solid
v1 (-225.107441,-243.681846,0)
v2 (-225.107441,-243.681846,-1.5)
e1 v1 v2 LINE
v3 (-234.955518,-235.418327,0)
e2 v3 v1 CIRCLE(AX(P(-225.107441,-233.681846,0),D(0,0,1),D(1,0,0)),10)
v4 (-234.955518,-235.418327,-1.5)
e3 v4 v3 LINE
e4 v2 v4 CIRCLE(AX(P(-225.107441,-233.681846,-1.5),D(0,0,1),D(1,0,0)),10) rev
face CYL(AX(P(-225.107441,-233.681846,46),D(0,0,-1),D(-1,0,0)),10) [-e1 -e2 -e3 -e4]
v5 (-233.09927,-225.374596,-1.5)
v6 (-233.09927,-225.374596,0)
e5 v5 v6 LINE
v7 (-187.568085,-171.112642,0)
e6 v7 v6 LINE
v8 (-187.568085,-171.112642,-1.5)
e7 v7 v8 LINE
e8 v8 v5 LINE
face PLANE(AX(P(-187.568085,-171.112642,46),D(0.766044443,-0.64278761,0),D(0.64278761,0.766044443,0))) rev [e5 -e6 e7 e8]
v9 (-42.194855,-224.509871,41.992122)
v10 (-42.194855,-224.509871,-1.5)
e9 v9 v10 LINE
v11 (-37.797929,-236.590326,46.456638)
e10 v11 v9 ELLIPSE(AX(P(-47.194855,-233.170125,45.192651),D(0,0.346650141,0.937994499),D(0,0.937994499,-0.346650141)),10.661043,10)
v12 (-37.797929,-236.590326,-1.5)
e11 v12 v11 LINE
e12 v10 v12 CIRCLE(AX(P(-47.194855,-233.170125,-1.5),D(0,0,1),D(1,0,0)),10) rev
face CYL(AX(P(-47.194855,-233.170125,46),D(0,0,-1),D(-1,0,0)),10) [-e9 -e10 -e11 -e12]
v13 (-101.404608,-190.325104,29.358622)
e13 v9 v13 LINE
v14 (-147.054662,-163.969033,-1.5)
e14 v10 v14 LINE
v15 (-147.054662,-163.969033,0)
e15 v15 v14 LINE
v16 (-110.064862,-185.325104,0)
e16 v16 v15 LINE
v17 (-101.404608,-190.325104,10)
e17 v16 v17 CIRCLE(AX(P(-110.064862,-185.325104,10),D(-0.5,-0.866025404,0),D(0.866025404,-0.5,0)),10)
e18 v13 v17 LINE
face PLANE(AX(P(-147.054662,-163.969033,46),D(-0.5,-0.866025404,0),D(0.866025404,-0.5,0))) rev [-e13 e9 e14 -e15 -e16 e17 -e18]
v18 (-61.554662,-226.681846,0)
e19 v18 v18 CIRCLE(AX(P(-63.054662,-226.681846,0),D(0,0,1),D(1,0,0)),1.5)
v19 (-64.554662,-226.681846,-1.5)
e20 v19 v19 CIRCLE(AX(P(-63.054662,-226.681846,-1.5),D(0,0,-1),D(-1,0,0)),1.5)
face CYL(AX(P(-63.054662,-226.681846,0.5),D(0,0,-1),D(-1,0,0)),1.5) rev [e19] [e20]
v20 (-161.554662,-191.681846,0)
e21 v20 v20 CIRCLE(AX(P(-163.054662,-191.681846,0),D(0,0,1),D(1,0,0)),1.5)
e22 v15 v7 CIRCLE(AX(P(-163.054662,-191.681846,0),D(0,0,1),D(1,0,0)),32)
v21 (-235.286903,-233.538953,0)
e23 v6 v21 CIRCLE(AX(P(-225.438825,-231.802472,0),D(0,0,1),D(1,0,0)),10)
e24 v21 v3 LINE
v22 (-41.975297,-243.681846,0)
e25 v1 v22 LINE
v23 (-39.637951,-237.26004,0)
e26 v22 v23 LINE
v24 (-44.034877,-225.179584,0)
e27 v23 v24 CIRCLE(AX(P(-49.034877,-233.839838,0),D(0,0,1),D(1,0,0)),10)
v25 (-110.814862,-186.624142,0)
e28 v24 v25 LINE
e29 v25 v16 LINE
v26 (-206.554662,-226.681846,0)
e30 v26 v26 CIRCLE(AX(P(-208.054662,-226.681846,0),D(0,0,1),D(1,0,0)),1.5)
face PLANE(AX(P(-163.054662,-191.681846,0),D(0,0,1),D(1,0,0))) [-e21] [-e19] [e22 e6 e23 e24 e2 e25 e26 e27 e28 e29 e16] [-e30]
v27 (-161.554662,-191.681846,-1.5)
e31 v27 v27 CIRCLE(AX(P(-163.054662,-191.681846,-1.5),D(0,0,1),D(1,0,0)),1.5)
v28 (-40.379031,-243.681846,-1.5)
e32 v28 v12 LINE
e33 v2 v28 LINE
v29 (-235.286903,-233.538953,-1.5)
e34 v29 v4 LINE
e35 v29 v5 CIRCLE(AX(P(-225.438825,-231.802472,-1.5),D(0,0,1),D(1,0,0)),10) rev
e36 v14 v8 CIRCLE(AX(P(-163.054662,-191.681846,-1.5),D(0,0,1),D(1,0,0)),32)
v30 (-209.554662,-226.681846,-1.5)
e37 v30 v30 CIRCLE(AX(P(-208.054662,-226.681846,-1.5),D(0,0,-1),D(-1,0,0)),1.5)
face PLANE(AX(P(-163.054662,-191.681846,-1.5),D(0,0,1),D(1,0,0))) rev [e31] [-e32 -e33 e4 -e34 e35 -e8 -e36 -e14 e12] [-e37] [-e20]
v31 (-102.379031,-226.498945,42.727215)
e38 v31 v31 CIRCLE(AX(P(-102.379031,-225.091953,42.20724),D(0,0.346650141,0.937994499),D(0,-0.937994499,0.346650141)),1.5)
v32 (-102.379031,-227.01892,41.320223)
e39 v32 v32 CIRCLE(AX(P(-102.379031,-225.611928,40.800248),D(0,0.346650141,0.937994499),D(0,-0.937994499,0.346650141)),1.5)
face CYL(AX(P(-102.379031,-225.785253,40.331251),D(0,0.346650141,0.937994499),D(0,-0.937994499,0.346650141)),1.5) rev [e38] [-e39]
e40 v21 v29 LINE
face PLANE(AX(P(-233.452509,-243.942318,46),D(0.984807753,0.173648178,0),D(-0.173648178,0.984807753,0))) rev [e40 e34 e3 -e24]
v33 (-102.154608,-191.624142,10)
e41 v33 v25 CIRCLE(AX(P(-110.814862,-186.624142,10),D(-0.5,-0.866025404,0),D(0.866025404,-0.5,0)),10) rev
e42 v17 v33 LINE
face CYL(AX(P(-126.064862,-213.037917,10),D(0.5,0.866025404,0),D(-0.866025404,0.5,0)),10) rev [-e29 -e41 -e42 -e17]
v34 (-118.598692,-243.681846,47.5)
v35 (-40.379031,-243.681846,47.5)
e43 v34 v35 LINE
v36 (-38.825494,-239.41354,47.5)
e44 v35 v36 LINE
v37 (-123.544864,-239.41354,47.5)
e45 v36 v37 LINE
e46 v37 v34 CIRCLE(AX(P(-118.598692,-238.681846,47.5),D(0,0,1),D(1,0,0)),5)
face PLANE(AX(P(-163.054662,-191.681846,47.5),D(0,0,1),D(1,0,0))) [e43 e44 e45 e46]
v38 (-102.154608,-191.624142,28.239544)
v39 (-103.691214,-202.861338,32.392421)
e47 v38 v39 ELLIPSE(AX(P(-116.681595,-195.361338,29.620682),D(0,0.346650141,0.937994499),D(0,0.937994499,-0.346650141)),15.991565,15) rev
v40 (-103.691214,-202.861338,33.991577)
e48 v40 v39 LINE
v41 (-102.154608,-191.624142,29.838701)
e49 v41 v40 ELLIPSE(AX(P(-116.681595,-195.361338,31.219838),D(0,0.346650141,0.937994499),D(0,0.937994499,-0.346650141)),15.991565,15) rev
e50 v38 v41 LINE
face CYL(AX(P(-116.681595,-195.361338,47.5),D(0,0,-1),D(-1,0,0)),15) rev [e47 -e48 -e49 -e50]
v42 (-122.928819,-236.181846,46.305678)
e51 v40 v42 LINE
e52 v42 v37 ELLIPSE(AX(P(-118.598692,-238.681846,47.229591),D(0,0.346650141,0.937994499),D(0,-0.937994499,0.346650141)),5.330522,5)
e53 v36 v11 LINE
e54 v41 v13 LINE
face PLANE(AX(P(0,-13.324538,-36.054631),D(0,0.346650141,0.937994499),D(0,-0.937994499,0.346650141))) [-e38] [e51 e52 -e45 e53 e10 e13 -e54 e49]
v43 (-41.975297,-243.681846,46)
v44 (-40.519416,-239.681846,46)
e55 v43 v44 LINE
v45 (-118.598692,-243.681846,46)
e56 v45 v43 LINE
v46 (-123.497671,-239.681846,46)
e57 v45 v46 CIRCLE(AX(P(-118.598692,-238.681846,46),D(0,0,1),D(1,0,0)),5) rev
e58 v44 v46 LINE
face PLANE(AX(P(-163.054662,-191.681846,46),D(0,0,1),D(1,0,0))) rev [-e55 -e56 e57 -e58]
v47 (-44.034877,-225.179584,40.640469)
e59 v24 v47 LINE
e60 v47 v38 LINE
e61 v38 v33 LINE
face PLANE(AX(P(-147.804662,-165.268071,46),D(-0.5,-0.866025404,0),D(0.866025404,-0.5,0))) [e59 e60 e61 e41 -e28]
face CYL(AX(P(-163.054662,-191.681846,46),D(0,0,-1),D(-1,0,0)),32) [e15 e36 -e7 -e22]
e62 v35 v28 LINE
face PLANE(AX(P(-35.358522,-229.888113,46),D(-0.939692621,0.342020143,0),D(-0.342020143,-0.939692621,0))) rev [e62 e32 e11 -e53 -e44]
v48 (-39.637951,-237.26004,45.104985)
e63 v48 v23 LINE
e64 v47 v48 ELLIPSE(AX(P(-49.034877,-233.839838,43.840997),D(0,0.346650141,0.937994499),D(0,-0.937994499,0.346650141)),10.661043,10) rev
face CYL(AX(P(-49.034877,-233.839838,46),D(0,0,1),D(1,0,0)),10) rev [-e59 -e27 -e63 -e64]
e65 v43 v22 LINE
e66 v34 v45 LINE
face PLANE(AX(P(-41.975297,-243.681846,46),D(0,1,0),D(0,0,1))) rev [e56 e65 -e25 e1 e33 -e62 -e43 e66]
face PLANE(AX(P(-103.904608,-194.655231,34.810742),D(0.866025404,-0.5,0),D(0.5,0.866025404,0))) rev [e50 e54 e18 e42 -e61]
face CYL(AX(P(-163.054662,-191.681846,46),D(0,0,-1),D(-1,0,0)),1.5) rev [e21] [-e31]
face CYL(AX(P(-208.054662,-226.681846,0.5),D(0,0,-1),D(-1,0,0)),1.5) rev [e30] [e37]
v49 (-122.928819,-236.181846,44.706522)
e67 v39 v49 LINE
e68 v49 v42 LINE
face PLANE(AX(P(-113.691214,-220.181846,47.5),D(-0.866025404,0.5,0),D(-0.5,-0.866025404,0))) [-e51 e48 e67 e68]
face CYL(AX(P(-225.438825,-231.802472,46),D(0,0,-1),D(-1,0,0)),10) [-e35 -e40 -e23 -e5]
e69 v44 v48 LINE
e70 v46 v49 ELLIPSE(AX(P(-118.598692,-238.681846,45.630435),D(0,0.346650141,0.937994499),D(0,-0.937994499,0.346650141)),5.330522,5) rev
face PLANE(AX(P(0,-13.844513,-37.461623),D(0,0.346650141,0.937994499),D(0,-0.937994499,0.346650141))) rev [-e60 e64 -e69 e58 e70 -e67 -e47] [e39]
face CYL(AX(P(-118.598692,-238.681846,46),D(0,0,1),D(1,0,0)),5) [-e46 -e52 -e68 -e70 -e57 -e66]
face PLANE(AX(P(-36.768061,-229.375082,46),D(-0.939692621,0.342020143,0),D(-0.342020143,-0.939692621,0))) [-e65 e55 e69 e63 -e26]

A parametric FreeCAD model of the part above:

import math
import FreeCAD as App
import Part
import Sketcher

V = App.Vector
Q = App.Units.Quantity


def edges_at(feature, points):
    """Names of the edges that pass closest to the given points."""
    edges = feature.Shape.Edges
    near = lambda p: min(range(len(edges)), key=lambda i: edges[i].distToShape(Part.Vertex(*p))[0])
    return sorted({f"Edge{near(p) + 1}" for p in points})


def faces_at(feature, points):
    """Names of the faces that lie closest to the given points."""
    faces = feature.Shape.Faces
    near = lambda p: min(range(len(faces)), key=lambda i: faces[i].distToShape(Part.Vertex(*p))[0])
    return sorted({f"Face{near(p) + 1}" for p in points})

doc = App.newDocument("Part")
body = doc.addObject("PartDesign::Body", "Body")

# Sketch on XY plane
sketch1 = body.newObject("Sketcher::SketchObject", "Sketch")
sketch1.AttachmentSupport = (doc.getObject("XY_Plane"), [""])
sketch1.MapMode = "FlatFace"
sketch1.addGeometry(Part.LineSegment(V(-186.4, -172.1, 0), V(-234.5, -229.4, 0)), False)
sketch1.addGeometry(Part.LineSegment(V(-234.5, -229.4, 0), V(-232, -243.7, 0)), False)
sketch1.addGeometry(Part.LineSegment(V(-232, -243.7, 0), V(-42, -243.7, 0)), False)
sketch1.addGeometry(Part.LineSegment(V(-42, -243.7, 0), V(-36.8, -229.4, 0)), False)
sketch1.addGeometry(Part.LineSegment(V(-36.8, -229.4, 0), V(-147.8, -165.3, 0)), False)
sketch1.addGeometry(Part.ArcOfCircle(Part.Circle(V(-163.1, -191.7, 0), V(0, 0, 1), 30.5), math.radians(60), math.radians(140)), False)
sketch1.addGeometry(Part.Circle(V(-163.1, -191.7, 0), V(0, 0, 1), 1.5), False)
sketch1.addConstraint(Sketcher.Constraint("Coincident", 0, 2, 1, 1))
sketch1.addConstraint(Sketcher.Constraint("Coincident", 1, 2, 2, 1))
sketch1.addConstraint(Sketcher.Constraint("Coincident", 2, 2, 3, 1))
sketch1.addConstraint(Sketcher.Constraint("Coincident", 3, 2, 4, 1))
sketch1.addConstraint(Sketcher.Constraint("Tangent", 4, 2, 5, 1))
sketch1.addConstraint(Sketcher.Constraint("Tangent", 5, 2, 0, 1))
sketch1.addConstraint(Sketcher.Constraint("Horizontal", 2))
sketch1.addConstraint(Sketcher.Constraint("Coincident", 6, 3, 5, 3))
sketch1.addConstraint(Sketcher.Constraint("Horizontal", 0, 2, 3, 2))
sketch1.addConstraint(Sketcher.Constraint("Diameter", 6, 3.0))
sketch1.addConstraint(Sketcher.Constraint("Radius", 5, 30.5))
sketch1.addConstraint(Sketcher.Constraint("DistanceX", 2, 1, 2, 2, 190.0))
sketch1.addConstraint(Sketcher.Constraint("Angle", 0, Q("-130 deg")))
sketch1.addConstraint(Sketcher.Constraint("Angle", 1, Q("-80 deg")))
sketch1.addConstraint(Sketcher.Constraint("Angle", 3, Q("70 deg")))
sketch1.addConstraint(Sketcher.Constraint("Angle", 4, Q("150 deg")))
sketch1.addConstraint(Sketcher.Constraint("DistanceY", 1, 2, 5, 3, 52.0))
sketch1.addConstraint(Sketcher.Constraint("DistanceX", 3, 2, -1, 1, 36.768061))
sketch1.addConstraint(Sketcher.Constraint("DistanceY", 4, 2, -1, 1, 165.268071))
pad1 = body.newObject("PartDesign::Pad", "Pad")
pad1.Profile = sketch1
pad1.Length = 46

# Sketch on an angled plane
sketch2 = body.newObject("Sketcher::SketchObject", "Sketch001")
sketch2.Placement = App.Placement(V(0, -13.844513, -37.461623), App.Rotation(V(1, 0, 0), V(0, 0.937994499, -0.346650141), V(0, 0.346650141, 0.937994499), "ZXY"))
sketch2.addGeometry(Part.LineSegment(V(-257, -137, 0), V(-257, -271, 0)), False)
sketch2.addGeometry(Part.LineSegment(V(-257, -271, 0), V(-13, -271, 0)), False)
sketch2.addGeometry(Part.LineSegment(V(-13, -271, 0), V(-13, -137, 0)), False)
sketch2.addGeometry(Part.LineSegment(V(-13, -137, 0), V(-257, -137, 0)), False)
sketch2.addConstraint(Sketcher.Constraint("Coincident", 0, 2, 1, 1))
sketch2.addConstraint(Sketcher.Constraint("Coincident", 1, 2, 2, 1))
sketch2.addConstraint(Sketcher.Constraint("Coincident", 2, 2, 3, 1))
sketch2.addConstraint(Sketcher.Constraint("Coincident", 3, 2, 0, 1))
sketch2.addConstraint(Sketcher.Constraint("Vertical", 0))
sketch2.addConstraint(Sketcher.Constraint("Horizontal", 1))
sketch2.addConstraint(Sketcher.Constraint("Vertical", 2))
sketch2.addConstraint(Sketcher.Constraint("Horizontal", 3))
sketch2.addConstraint(Sketcher.Constraint("DistanceX", 1, 1, 1, 2, 244.099615))
sketch2.addConstraint(Sketcher.Constraint("DistanceY", 0, 2, 0, 1, 133.346378))
sketch2.addConstraint(Sketcher.Constraint("DistanceX", 0, 2, -1, 1, 256.649628))
sketch2.addConstraint(Sketcher.Constraint("DistanceY", 0, 2, -1, 1, 270.771361))
pocket1 = body.newObject("PartDesign::Pocket", "Pocket")
pocket1.Profile = sketch2
pocket1.Type = "ThroughAll"
pocket1.Reversed = True
doc.recompute()

thickness = body.newObject("PartDesign::Thickness", "Thickness")
thickness.Base = (pocket1, faces_at(pocket1, [(-136.975, -243.682, 23), (-164.555, -191.682, 14.464)]))
thickness.Value = 1.5
thickness.Reversed = False
thickness.Join = "Intersection"

# Sketch on XY plane
sketch3 = body.newObject("Sketcher::SketchObject", "Sketch002")
sketch3.AttachmentSupport = (doc.getObject("XY_Plane"), [""])
sketch3.MapMode = "FlatFace"
sketch3.addGeometry(Part.LineSegment(V(-104, -203, 0), V(-127, -244, 0)), False)
sketch3.addGeometry(Part.LineSegment(V(-127, -244, 0), V(-233, -244, 0)), False)
sketch3.addGeometry(Part.LineSegment(V(-233, -244, 0), V(-236, -229, 0)), False)
sketch3.addGeometry(Part.LineSegment(V(-236, -229, 0), V(-188, -171, 0)), False)
sketch3.addGeometry(Part.ArcOfCircle(Part.Circle(V(-163, -192, 0), V(0, 0, 1), 32), math.radians(60), math.radians(140)), False)
sketch3.addGeometry(Part.LineSegment(V(-147, -164, 0), V(-103, -189, 0)), False)
sketch3.addGeometry(Part.ArcOfCircle(Part.Circle(V(-117, -195, 0), V(0, 0, 1), 15), math.radians(-30), math.radians(23)), False)
sketch3.addConstraint(Sketcher.Constraint("Coincident", 0, 2, 1, 1))
sketch3.addConstraint(Sketcher.Constraint("Coincident", 1, 2, 2, 1))
sketch3.addConstraint(Sketcher.Constraint("Coincident", 2, 2, 3, 1))
sketch3.addConstraint(Sketcher.Constraint("Tangent", 3, 2, 4, 2))
sketch3.addConstraint(Sketcher.Constraint("Tangent", 4, 1, 5, 1))
sketch3.addConstraint(Sketcher.Constraint("Coincident", 5, 2, 6, 2))
sketch3.addConstraint(Sketcher.Constraint("Tangent", 6, 1, 0, 1))
sketch3.addConstraint(Sketcher.Constraint("Horizontal", 1))
sketch3.addConstraint(Sketcher.Constraint("Perpendicular", 0, 5))
sketch3.addConstraint(Sketcher.Constraint("Radius", 4, 32.0))
sketch3.addConstraint(Sketcher.Constraint("Radius", 6, 15.0))
sketch3.addConstraint(Sketcher.Constraint("Angle", 0, Q("-120 deg")))
sketch3.addConstraint(Sketcher.Constraint("Angle", 2, Q("100 deg")))
sketch3.addConstraint(Sketcher.Constraint("Angle", 3, Q("50 deg")))
sketch3.addConstraint(Sketcher.Constraint("Distance", 5, 51.0))
sketch3.addConstraint(Sketcher.Constraint("DistanceY", 0, 2, 4, 3, 52.0))
sketch3.addConstraint(Sketcher.Constraint("DistanceX", 1, 2, 1, 1, 106.239492))
sketch3.addConstraint(Sketcher.Constraint("DistanceX", 2, 2, 1, 2, 2.5982))
sketch3.addConstraint(Sketcher.Constraint("DistanceY", 2, 2, -1, 1, 228.946719))
sketch3.addConstraint(Sketcher.Constraint("DistanceX", 4, 3, -1, 1, 163.054662))
pocket2 = body.newObject("PartDesign::Pocket", "Pocket001")
pocket2.Profile = sketch3
pocket2.Type = "ThroughAll"
pocket2.Reversed = True
doc.recompute()

fillet = body.newObject("PartDesign::Fillet", "Fillet")
fillet.Base = (pocket2, edges_at(pocket2, [(-34.928, -228.705, 21.021), (-36.768, -229.375, 21.095)]))
fillet.Radius = 10
doc.recompute()

fillet2 = body.newObject("PartDesign::Fillet", "Fillet001")
fillet2.Base = (fillet, edges_at(fillet, [(-236.097, -228.947, -0.75), (-233.498, -243.682, -0.75)]))
fillet2.Radius = 10
doc.recompute()

fillet3 = body.newObject("PartDesign::Fillet", "Fillet002")
fillet3.Base = (fillet2, edges_at(fillet2, [(-127.259, -243.682, 46.75)]))
fillet3.Radius = 5

# Sketch on an angled plane
sketch4 = body.newObject("Sketcher::SketchObject", "Sketch003")
sketch4.Placement = App.Placement(V(-107.764339, -186.653311, 0), App.Rotation(V(0.866025404, -0.5, 0), V(0, 0, -1), V(0.5, 0.866025404, 0), "ZXY"))
sketch4.addGeometry(Part.LineSegment(V(5.6, 0, 0), V(5.6, -34.8, 0)), False)
sketch4.addGeometry(Part.LineSegment(V(5.6, -34.8, 0), V(7.3, -34.8, 0)), False)
sketch4.addGeometry(Part.LineSegment(V(7.3, -34.8, 0), V(7.3, 0, 0)), False)
sketch4.addGeometry(Part.LineSegment(V(7.3, 0, 0), V(5.6, 0, 0)), False)
sketch4.addConstraint(Sketcher.Constraint("Coincident", 0, 2, 1, 1))
sketch4.addConstraint(Sketcher.Constraint("Coincident", 1, 2, 2, 1))
sketch4.addConstraint(Sketcher.Constraint("Coincident", 2, 2, 3, 1))
sketch4.addConstraint(Sketcher.Constraint("Coincident", 3, 2, 0, 1))
sketch4.addConstraint(Sketcher.Constraint("Vertical", 0))
sketch4.addConstraint(Sketcher.Constraint("Horizontal", 1))
sketch4.addConstraint(Sketcher.Constraint("Vertical", 2))
sketch4.addConstraint(Sketcher.Constraint("Horizontal", 3))
sketch4.addConstraint(Sketcher.Constraint("PointOnObject", 2, 2, -1))
sketch4.addConstraint(Sketcher.Constraint("DistanceX", 1, 1, 1, 2, 1.712143))
sketch4.addConstraint(Sketcher.Constraint("DistanceY", 0, 2, 0, 1, 34.810742))
sketch4.addConstraint(Sketcher.Constraint("DistanceX", -1, 1, 0, 2, 5.631443))
pocket3 = body.newObject("PartDesign::Pocket", "Pocket002")
pocket3.Profile = sketch4
pocket3.Length = 5
doc.recompute()

fillet4 = body.newObject("PartDesign::Fillet", "Fillet003")
fillet4.Base = (pocket3, edges_at(pocket3, [(-101.78, -190.975, 0)]))
fillet4.Radius = 10

# Sketch on XY plane
sketch5 = body.newObject("Sketcher::SketchObject", "Sketch004")
sketch5.AttachmentSupport = (doc.getObject("XY_Plane"), [""])
sketch5.MapMode = "FlatFace"
sketch5.AttachmentOffset = App.Placement(V(0, 0, -1.5), App.Rotation())
sketch5.addGeometry(Part.Circle(V(-208.1, -226.7, 0), V(0, 0, 1), 1.5), False)
sketch5.addGeometry(Part.Circle(V(-63.1, -226.7, 0), V(0, 0, 1), 1.5), False)
sketch5.addConstraint(Sketcher.Constraint("Equal", 0, 1))
sketch5.addConstraint(Sketcher.Constraint("Horizontal", 0, 3, 1, 3))
sketch5.addConstraint(Sketcher.Constraint("Diameter", 0, 3.0))
sketch5.addConstraint(Sketcher.Constraint("DistanceX", 0, 3, 1, 3, 145.0))
sketch5.addConstraint(Sketcher.Constraint("DistanceX", 0, 3, -1, 1, 208.054662))
sketch5.addConstraint(Sketcher.Constraint("DistanceY", 0, 3, -1, 1, 226.681846))
pocket4 = body.newObject("PartDesign::Pocket", "Pocket003")
pocket4.Profile = sketch5
pocket4.Length = 2
pocket4.Reversed = True

# Sketch on an angled plane
sketch6 = body.newObject("Sketcher::SketchObject", "Sketch005")
sketch6.Placement = App.Placement(V(0, -13.324538, -36.054631), App.Rotation(V(1, 0, 0), V(0, 0.937994499, -0.346650141), V(0, 0.346650141, 0.937994499), "ZXY"))
sketch6.addGeometry(Part.Circle(V(-102.4, -225.8, 0), V(0, 0, 1), 1.5), False)
sketch6.addConstraint(Sketcher.Constraint("Diameter", 0, 3.0))
sketch6.addConstraint(Sketcher.Constraint("DistanceX", 0, 3, -1, 1, 102.379031))
sketch6.addConstraint(Sketcher.Constraint("DistanceY", 0, 3, -1, 1, 225.766159))
pocket5 = body.newObject("PartDesign::Pocket", "Pocket004")
pocket5.Profile = sketch6
pocket5.Length = 2

doc.recompute()
